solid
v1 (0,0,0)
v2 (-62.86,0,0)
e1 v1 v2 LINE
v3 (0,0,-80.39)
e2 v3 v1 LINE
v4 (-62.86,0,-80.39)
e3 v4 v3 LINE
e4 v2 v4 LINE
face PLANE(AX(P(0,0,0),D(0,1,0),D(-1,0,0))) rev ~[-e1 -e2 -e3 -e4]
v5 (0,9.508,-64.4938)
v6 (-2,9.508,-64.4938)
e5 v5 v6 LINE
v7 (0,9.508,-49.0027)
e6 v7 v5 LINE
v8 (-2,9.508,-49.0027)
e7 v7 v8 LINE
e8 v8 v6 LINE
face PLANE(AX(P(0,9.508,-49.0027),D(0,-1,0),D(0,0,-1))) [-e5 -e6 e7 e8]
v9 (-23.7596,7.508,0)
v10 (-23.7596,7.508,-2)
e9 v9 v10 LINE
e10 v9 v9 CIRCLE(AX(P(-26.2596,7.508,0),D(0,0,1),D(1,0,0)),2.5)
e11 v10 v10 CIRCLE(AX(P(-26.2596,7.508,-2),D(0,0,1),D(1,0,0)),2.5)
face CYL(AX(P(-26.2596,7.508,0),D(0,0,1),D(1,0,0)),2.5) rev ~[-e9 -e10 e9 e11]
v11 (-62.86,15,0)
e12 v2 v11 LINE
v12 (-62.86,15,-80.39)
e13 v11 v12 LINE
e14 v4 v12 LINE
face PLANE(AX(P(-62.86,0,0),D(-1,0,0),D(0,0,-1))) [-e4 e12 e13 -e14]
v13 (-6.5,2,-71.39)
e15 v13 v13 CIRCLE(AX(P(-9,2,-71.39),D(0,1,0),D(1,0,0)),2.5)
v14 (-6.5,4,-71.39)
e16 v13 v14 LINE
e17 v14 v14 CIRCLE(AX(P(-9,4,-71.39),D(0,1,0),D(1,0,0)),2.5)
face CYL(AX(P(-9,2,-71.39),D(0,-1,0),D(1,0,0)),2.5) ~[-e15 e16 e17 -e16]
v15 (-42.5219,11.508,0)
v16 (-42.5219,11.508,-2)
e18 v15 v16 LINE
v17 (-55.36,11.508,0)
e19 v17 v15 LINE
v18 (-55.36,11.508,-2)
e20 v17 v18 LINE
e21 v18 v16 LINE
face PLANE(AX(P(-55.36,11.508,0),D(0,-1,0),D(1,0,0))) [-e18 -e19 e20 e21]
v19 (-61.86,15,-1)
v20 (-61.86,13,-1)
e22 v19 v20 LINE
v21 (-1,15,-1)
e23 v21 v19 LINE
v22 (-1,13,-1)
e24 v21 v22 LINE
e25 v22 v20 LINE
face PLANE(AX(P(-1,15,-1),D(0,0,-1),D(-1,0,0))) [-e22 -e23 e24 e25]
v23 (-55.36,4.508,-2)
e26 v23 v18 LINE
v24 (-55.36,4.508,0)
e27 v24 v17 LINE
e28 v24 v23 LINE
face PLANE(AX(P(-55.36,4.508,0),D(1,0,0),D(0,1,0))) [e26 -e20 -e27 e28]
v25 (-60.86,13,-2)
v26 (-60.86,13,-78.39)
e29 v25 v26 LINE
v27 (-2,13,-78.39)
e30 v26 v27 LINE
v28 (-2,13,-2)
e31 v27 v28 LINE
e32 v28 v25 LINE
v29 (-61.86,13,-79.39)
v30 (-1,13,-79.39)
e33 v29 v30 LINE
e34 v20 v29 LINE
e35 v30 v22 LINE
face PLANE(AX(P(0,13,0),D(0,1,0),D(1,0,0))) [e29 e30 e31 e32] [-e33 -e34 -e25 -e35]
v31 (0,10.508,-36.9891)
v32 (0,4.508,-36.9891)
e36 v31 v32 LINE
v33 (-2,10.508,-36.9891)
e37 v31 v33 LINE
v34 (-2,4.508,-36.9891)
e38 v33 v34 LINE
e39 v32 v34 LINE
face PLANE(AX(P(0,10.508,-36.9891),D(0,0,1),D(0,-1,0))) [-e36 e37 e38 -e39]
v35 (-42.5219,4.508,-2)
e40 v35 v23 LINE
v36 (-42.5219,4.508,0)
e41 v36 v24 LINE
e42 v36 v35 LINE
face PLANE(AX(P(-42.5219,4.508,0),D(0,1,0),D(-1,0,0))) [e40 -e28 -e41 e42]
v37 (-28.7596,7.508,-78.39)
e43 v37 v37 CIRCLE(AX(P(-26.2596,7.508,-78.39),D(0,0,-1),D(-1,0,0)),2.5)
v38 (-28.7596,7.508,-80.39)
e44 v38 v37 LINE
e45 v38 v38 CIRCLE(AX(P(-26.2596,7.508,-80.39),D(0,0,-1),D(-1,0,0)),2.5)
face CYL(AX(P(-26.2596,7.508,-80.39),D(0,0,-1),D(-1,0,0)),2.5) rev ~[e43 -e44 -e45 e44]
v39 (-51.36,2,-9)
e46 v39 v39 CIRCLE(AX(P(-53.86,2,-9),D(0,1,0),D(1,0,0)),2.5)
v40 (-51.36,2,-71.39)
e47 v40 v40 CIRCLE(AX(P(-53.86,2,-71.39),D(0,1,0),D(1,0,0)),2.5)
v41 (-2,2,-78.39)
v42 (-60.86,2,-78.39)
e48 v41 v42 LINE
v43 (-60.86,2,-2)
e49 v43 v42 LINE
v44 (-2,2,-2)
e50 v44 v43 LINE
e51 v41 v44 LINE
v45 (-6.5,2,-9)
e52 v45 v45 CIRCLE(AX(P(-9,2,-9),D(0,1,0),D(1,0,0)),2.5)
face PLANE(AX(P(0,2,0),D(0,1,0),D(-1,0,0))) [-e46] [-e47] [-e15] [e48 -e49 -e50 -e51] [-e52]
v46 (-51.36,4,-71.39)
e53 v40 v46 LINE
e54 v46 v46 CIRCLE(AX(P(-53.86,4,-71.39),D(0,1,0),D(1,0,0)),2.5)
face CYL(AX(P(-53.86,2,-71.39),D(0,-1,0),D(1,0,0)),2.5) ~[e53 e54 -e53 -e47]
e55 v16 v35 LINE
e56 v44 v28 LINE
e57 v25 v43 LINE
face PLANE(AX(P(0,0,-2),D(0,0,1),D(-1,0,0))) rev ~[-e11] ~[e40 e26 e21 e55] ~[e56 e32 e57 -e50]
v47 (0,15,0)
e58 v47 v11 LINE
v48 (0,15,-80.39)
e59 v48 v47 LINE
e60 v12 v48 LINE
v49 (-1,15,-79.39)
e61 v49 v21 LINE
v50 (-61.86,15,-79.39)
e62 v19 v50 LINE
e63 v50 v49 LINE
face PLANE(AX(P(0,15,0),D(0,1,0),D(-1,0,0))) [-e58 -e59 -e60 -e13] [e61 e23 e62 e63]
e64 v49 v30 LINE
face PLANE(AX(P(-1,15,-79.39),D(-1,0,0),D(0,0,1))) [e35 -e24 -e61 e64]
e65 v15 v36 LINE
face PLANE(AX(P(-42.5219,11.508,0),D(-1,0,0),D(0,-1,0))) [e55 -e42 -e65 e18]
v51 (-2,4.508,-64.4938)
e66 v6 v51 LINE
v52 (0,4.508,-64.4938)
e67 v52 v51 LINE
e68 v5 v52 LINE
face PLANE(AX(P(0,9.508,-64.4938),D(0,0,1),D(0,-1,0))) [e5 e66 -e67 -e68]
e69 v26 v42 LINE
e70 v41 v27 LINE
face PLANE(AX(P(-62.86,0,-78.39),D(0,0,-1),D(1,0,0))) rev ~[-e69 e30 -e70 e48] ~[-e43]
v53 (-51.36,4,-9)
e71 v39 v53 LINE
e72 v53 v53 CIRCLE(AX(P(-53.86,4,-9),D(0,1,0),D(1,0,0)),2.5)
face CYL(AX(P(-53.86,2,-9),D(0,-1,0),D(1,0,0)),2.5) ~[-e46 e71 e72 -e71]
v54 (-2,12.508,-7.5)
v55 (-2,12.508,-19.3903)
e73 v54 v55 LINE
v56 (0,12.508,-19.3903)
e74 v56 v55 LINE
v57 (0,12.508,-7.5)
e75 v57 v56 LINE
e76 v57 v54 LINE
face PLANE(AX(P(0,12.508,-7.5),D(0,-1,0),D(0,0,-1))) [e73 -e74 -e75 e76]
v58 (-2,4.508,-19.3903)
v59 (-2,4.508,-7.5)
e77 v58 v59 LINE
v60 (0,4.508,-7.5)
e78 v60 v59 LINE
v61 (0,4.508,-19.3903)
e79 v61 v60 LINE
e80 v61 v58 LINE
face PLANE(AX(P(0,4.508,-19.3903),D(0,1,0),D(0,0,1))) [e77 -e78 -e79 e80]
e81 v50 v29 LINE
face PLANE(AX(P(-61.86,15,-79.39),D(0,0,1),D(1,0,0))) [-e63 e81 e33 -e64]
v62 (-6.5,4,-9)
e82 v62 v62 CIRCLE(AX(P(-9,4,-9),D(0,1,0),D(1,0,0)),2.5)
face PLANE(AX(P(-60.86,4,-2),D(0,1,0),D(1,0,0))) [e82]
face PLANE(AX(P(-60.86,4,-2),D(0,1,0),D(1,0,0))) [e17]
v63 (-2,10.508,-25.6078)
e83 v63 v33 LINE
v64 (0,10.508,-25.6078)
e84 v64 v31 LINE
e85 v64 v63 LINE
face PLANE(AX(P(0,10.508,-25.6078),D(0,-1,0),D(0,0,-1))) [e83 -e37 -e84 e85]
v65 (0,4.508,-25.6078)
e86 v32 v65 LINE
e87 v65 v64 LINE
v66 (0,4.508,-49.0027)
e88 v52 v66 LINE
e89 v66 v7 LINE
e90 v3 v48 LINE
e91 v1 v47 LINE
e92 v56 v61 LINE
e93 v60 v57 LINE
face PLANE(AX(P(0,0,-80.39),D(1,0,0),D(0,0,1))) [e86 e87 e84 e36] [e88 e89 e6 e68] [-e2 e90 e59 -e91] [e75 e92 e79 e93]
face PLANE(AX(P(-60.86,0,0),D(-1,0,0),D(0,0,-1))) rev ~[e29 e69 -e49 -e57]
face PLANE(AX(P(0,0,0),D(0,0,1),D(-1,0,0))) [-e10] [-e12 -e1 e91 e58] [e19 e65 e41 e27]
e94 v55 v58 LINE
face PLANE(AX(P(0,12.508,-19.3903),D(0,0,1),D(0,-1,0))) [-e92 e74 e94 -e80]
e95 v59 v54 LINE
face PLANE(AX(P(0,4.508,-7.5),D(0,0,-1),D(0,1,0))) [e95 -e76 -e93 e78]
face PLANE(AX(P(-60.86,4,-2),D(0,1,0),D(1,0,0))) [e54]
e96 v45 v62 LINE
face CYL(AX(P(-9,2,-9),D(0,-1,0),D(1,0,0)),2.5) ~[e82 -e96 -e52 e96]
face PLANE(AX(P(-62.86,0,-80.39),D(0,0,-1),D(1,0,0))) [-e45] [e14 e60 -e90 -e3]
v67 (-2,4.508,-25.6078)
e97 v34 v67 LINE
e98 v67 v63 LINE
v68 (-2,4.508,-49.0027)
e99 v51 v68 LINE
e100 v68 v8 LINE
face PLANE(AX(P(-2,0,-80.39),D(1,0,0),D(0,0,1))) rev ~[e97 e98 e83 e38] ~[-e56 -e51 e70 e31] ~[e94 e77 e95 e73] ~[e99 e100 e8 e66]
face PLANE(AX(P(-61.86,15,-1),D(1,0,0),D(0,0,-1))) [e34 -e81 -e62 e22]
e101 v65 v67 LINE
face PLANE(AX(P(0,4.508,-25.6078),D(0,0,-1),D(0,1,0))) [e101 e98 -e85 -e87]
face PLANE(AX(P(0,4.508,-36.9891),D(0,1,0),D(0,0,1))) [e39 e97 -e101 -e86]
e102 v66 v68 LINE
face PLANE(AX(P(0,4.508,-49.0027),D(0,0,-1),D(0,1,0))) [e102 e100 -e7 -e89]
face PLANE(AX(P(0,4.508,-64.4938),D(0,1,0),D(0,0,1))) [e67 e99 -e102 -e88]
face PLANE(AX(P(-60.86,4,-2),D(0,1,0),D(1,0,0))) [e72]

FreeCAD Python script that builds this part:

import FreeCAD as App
import Part
import Sketcher

V = App.Vector
Q = App.Units.Quantity


def faces_at(feature, points):
    """Names of the faces that lie closest to the given points."""
    faces = feature.Shape.Faces
    near = lambda p: min(range(len(faces)), key=lambda i: faces[i].distToShape(Part.Vertex(*p))[0])
    return sorted({f"Face{near(p) + 1}" for p in points})

doc = App.newDocument("Part")
params = doc.addObject("Spreadsheet::Sheet", "Params")
for row, (alias, value) in enumerate([
    ("sketch1_width", "62.86 mm"),
    ("sketch1_height", "80.39 mm"),
    ("pad1_length", "15 mm"),
    ("thickness_wall", "2 mm"),
    ("sketch2_width", "60.86 mm"),
    ("sketch2_height", "78.39 mm"),
    ("pocket1_length", "2 mm"),
    ("sketch3_diameter", "5 mm"),
    ("pad2_length", "2 mm"),
    ("sketch4_width", "8 mm"),
    ("sketch4_width2", "6 mm"),
    ("sketch4_width3", "5 mm"),
    ("pocket2_length", "2 mm"),
    ("sketch5_diameter", "5 mm"),
    ("sketch5_height", "7 mm"),
    ("pocket3_length", "2 mm"),
    ("sketch6_diameter", "5 mm"),
    ("pocket4_length", "2 mm"),
], start=1):
    params.set(f"A{row}", alias)
    params.set(f"B{row}", "=" + value)
    params.setAlias(f"B{row}", alias)

body = doc.addObject("PartDesign::Body", "Body")

sketch1 = body.newObject("Sketcher::SketchObject", "Sketch")
sketch1.AttachmentSupport = (doc.getObject("XZ_Plane"), [""])
sketch1.MapMode = "FlatFace"
sketch1.addGeometry(Part.LineSegment(V(-63, 0, 0), V(0, 0, 0)), False)
sketch1.addGeometry(Part.LineSegment(V(0, 0, 0), V(0, -80, 0)), False)
sketch1.addGeometry(Part.LineSegment(V(0, -80, 0), V(-63, -80, 0)), False)
sketch1.addGeometry(Part.LineSegment(V(-63, -80, 0), V(-63, 0, 0)), False)
sketch1.addConstraint(Sketcher.Constraint("Coincident", 0, 2, 1, 1))
sketch1.addConstraint(Sketcher.Constraint("Coincident", 1, 2, 2, 1))
sketch1.addConstraint(Sketcher.Constraint("Coincident", 2, 2, 3, 1))
sketch1.addConstraint(Sketcher.Constraint("Coincident", 3, 2, 0, 1))
sketch1.addConstraint(Sketcher.Constraint("Horizontal", 0))
sketch1.addConstraint(Sketcher.Constraint("Vertical", 1))
sketch1.addConstraint(Sketcher.Constraint("Horizontal", 2))
sketch1.addConstraint(Sketcher.Constraint("Vertical", 3))
sketch1.addConstraint(Sketcher.Constraint("Coincident", 0, 2, -1, 1))
sketch1.addConstraint(Sketcher.Constraint("DistanceX", 0, 1, 0, 2, Q("62.86 mm")))
sketch1.addConstraint(Sketcher.Constraint("DistanceY", 1, 2, 1, 1, Q("80.39 mm")))
sketch1.setExpression("Constraints[9]", "Params.sketch1_width")
sketch1.setExpression("Constraints[10]", "Params.sketch1_height")
pad1 = body.newObject("PartDesign::Pad", "Pad")
pad1.Profile = sketch1
pad1.setExpression("Length", "Params.pad1_length")
pad1.Reversed = True
doc.recompute()

thickness = body.newObject("PartDesign::Thickness", "Thickness")
thickness.Base = (pad1, faces_at(pad1, [(-20.953, 15, -26.797)]))
thickness.setExpression("Value", "Params.thickness_wall")
thickness.Reversed = True
thickness.Join = "Intersection"

sketch2 = body.newObject("Sketcher::SketchObject", "Sketch001")
sketch2.AttachmentSupport = (doc.getObject("XZ_Plane"), [""])
sketch2.MapMode = "FlatFace"
sketch2.AttachmentOffset = App.Placement(V(0, 0, -15), App.Rotation())
sketch2.addGeometry(Part.LineSegment(V(-1, -79, 0), V(-62, -79, 0)), False)
sketch2.addGeometry(Part.LineSegment(V(-62, -79, 0), V(-62, -1, 0)), False)
sketch2.addGeometry(Part.LineSegment(V(-62, -1, 0), V(-1, -1, 0)), False)
sketch2.addGeometry(Part.LineSegment(V(-1, -1, 0), V(-1, -79, 0)), False)
sketch2.addGeometry(Part.LineSegment(V(-2, -2, 0), V(-61, -2, 0)), False)
sketch2.addGeometry(Part.LineSegment(V(-61, -2, 0), V(-61, -78, 0)), False)
sketch2.addGeometry(Part.LineSegment(V(-61, -78, 0), V(-2, -78, 0)), False)
sketch2.addGeometry(Part.LineSegment(V(-2, -78, 0), V(-2, -2, 0)), False)
sketch2.addConstraint(Sketcher.Constraint("Coincident", 0, 2, 1, 1))
sketch2.addConstraint(Sketcher.Constraint("Coincident", 1, 2, 2, 1))
sketch2.addConstraint(Sketcher.Constraint("Coincident", 2, 2, 3, 1))
sketch2.addConstraint(Sketcher.Constraint("Coincident", 3, 2, 0, 1))
sketch2.addConstraint(Sketcher.Constraint("Coincident", 4, 2, 5, 1))
sketch2.addConstraint(Sketcher.Constraint("Coincident", 5, 2, 6, 1))
sketch2.addConstraint(Sketcher.Constraint("Coincident", 6, 2, 7, 1))
sketch2.addConstraint(Sketcher.Constraint("Coincident", 7, 2, 4, 1))
sketch2.addConstraint(Sketcher.Constraint("Horizontal", 0))
sketch2.addConstraint(Sketcher.Constraint("Vertical", 1))
sketch2.addConstraint(Sketcher.Constraint("Horizontal", 2))
sketch2.addConstraint(Sketcher.Constraint("Vertical", 3))
sketch2.addConstraint(Sketcher.Constraint("Horizontal", 4))
sketch2.addConstraint(Sketcher.Constraint("Vertical", 5))
sketch2.addConstraint(Sketcher.Constraint("Horizontal", 6))
sketch2.addConstraint(Sketcher.Constraint("Vertical", 7))
sketch2.addConstraint(Sketcher.Constraint("DistanceY", 1, 2, -1, 1, Q("1 mm")))
sketch2.addConstraint(Sketcher.Constraint("DistanceX", 2, 2, -1, 1, Q("1 mm")))
sketch2.addConstraint(Sketcher.Constraint("DistanceX", 1, 2, 4, 2, Q("1 mm")))
sketch2.addConstraint(Sketcher.Constraint("DistanceY", 4, 2, 1, 2, Q("1 mm")))
sketch2.addConstraint(Sketcher.Constraint("DistanceY", 0, 2, 5, 2, Q("1 mm")))
sketch2.addConstraint(Sketcher.Constraint("DistanceX", 6, 2, 3, 2, Q("1 mm")))
sketch2.addConstraint(Sketcher.Constraint("DistanceX", 0, 2, 0, 1, Q("60.86 mm")))
sketch2.addConstraint(Sketcher.Constraint("DistanceY", 1, 1, 1, 2, Q("78.39 mm")))
sketch2.setExpression("Constraints[22]", "Params.sketch2_width")
sketch2.setExpression("Constraints[23]", "Params.sketch2_height")
pocket1 = body.newObject("PartDesign::Pocket", "Pocket")
pocket1.Profile = sketch2
pocket1.setExpression("Length", "Params.pocket1_length")
pocket1.Reversed = True

sketch3 = body.newObject("Sketcher::SketchObject", "Sketch002")
sketch3.AttachmentSupport = (doc.getObject("XZ_Plane"), [""])
sketch3.MapMode = "FlatFace"
sketch3.AttachmentOffset = App.Placement(V(0, 0, -2), App.Rotation())
sketch3.addGeometry(Part.Circle(V(-53.9, -71.4, 0), V(0, 0, 1), 2.5), False)
sketch3.addGeometry(Part.Circle(V(-9, -71.4, 0), V(0, 0, 1), 2.5), False)
sketch3.addGeometry(Part.Circle(V(-53.9, -9, 0), V(0, 0, 1), 2.5), False)
sketch3.addGeometry(Part.Circle(V(-9, -9, 0), V(0, 0, 1), 2.5), False)
sketch3.addConstraint(Sketcher.Constraint("Equal", 0, 1))
sketch3.addConstraint(Sketcher.Constraint("Equal", 1, 2))
sketch3.addConstraint(Sketcher.Constraint("Equal", 2, 3))
sketch3.addConstraint(Sketcher.Constraint("Horizontal", 0, 3, 1, 3))
sketch3.addConstraint(Sketcher.Constraint("Horizontal", 2, 3, 3, 3))
sketch3.addConstraint(Sketcher.Constraint("Vertical", 0, 3, 2, 3))
sketch3.addConstraint(Sketcher.Constraint("Vertical", 1, 3, 3, 3))
sketch3.addConstraint(Sketcher.Constraint("Diameter", 0, Q("5 mm")))
sketch3.addConstraint(Sketcher.Constraint("DistanceX", 1, 3, -1, 1, Q("9 mm")))
sketch3.addConstraint(Sketcher.Constraint("DistanceY", 2, 3, -1, 1, Q("9 mm")))
sketch3.addConstraint(Sketcher.Constraint("DistanceX", 0, 3, -1, 1, Q("53.86 mm")))
sketch3.addConstraint(Sketcher.Constraint("DistanceY", 0, 3, -1, 1, Q("71.39 mm")))
sketch3.setExpression("Constraints[7]", "Params.sketch3_diameter")
pad2 = body.newObject("PartDesign::Pad", "Pad001")
pad2.Profile = sketch3
pad2.setExpression("Length", "Params.pad2_length")
pad2.Reversed = True

sketch4 = body.newObject("Sketcher::SketchObject", "Sketch003")
sketch4.AttachmentSupport = (doc.getObject("YZ_Plane"), [""])
sketch4.MapMode = "FlatFace"
sketch4.addGeometry(Part.LineSegment(V(12.5, -19.4, 0), V(12.5, -7.5, 0)), False)
sketch4.addGeometry(Part.LineSegment(V(12.5, -7.5, 0), V(4.5, -7.5, 0)), False)
sketch4.addGeometry(Part.LineSegment(V(4.5, -7.5, 0), V(4.5, -19.4, 0)), False)
sketch4.addGeometry(Part.LineSegment(V(4.5, -19.4, 0), V(12.5, -19.4, 0)), False)
sketch4.addGeometry(Part.LineSegment(V(10.5, -37, 0), V(10.5, -25.6, 0)), False)
sketch4.addGeometry(Part.LineSegment(V(10.5, -25.6, 0), V(4.5, -25.6, 0)), False)
sketch4.addGeometry(Part.LineSegment(V(4.5, -25.6, 0), V(4.5, -37, 0)), False)
sketch4.addGeometry(Part.LineSegment(V(4.5, -37, 0), V(10.5, -37, 0)), False)
sketch4.addGeometry(Part.LineSegment(V(9.5, -64.5, 0), V(9.5, -49, 0)), False)
sketch4.addGeometry(Part.LineSegment(V(9.5, -49, 0), V(4.5, -49, 0)), False)
sketch4.addGeometry(Part.LineSegment(V(4.5, -49, 0), V(4.5, -64.5, 0)), False)
sketch4.addGeometry(Part.LineSegment(V(4.5, -64.5, 0), V(9.5, -64.5, 0)), False)
sketch4.addConstraint(Sketcher.Constraint("Coincident", 0, 2, 1, 1))
sketch4.addConstraint(Sketcher.Constraint("Coincident", 1, 2, 2, 1))
sketch4.addConstraint(Sketcher.Constraint("Coincident", 2, 2, 3, 1))
sketch4.addConstraint(Sketcher.Constraint("Coincident", 3, 2, 0, 1))
sketch4.addConstraint(Sketcher.Constraint("Coincident", 4, 2, 5, 1))
sketch4.addConstraint(Sketcher.Constraint("Coincident", 5, 2, 6, 1))
sketch4.addConstraint(Sketcher.Constraint("Coincident", 6, 2, 7, 1))
sketch4.addConstraint(Sketcher.Constraint("Coincident", 7, 2, 4, 1))
sketch4.addConstraint(Sketcher.Constraint("Coincident", 8, 2, 9, 1))
sketch4.addConstraint(Sketcher.Constraint("Coincident", 9, 2, 10, 1))
sketch4.addConstraint(Sketcher.Constraint("Coincident", 10, 2, 11, 1))
sketch4.addConstraint(Sketcher.Constraint("Coincident", 11, 2, 8, 1))
sketch4.addConstraint(Sketcher.Constraint("Vertical", 0))
sketch4.addConstraint(Sketcher.Constraint("Horizontal", 1))
sketch4.addConstraint(Sketcher.Constraint("Vertical", 2))
sketch4.addConstraint(Sketcher.Constraint("Horizontal", 3))
sketch4.addConstraint(Sketcher.Constraint("Vertical", 4))
sketch4.addConstraint(Sketcher.Constraint("Horizontal", 5))
sketch4.addConstraint(Sketcher.Constraint("Vertical", 6))
sketch4.addConstraint(Sketcher.Constraint("Horizontal", 7))
sketch4.addConstraint(Sketcher.Constraint("Vertical", 8))
sketch4.addConstraint(Sketcher.Constraint("Horizontal", 9))
sketch4.addConstraint(Sketcher.Constraint("Vertical", 10))
sketch4.addConstraint(Sketcher.Constraint("Horizontal", 11))
sketch4.addConstraint(Sketcher.Constraint("Vertical", 2, 2, 5, 2))
sketch4.addConstraint(Sketcher.Constraint("Vertical", 6, 2, 9, 2))
sketch4.addConstraint(Sketcher.Constraint("DistanceX", 1, 2, 1, 1, Q("8 mm")))
sketch4.addConstraint(Sketcher.Constraint("DistanceX", 5, 2, 5, 1, Q("6 mm")))
sketch4.addConstraint(Sketcher.Constraint("DistanceX", 9, 2, 9, 1, Q("5 mm")))
sketch4.addConstraint(Sketcher.Constraint("DistanceY", 0, 2, -1, 1, Q("7.5 mm")))
sketch4.addConstraint(Sketcher.Constraint("DistanceY", 8, 1, 8, 2, Q("15.491 mm")))
sketch4.addConstraint(Sketcher.Constraint("DistanceY", 0, 1, 0, 2, Q("11.8903 mm")))
sketch4.addConstraint(Sketcher.Constraint("DistanceY", 4, 1, 4, 2, Q("11.3813 mm")))
sketch4.addConstraint(Sketcher.Constraint("DistanceX", -1, 1, 0, 2, Q("12.508 mm")))
sketch4.addConstraint(Sketcher.Constraint("DistanceY", 6, 2, -1, 1, Q("36.989 mm")))
sketch4.addConstraint(Sketcher.Constraint("DistanceY", 8, 2, 4, 2, Q("23.395 mm")))
sketch4.setExpression("Constraints[26]", "Params.sketch4_width")
sketch4.setExpression("Constraints[27]", "Params.sketch4_width2")
sketch4.setExpression("Constraints[28]", "Params.sketch4_width3")
pocket2 = body.newObject("PartDesign::Pocket", "Pocket001")
pocket2.Profile = sketch4
pocket2.setExpression("Length", "Params.pocket2_length")

sketch5 = body.newObject("Sketcher::SketchObject", "Sketch004")
sketch5.AttachmentSupport = (doc.getObject("XY_Plane"), [""])
sketch5.MapMode = "FlatFace"
sketch5.addGeometry(Part.LineSegment(V(-42.5, 11.5, 0), V(-55.4, 11.5, 0)), False)
sketch5.addGeometry(Part.LineSegment(V(-55.4, 11.5, 0), V(-55.4, 4.5, 0)), False)
sketch5.addGeometry(Part.LineSegment(V(-55.4, 4.5, 0), V(-42.5, 4.5, 0)), False)
sketch5.addGeometry(Part.LineSegment(V(-42.5, 4.5, 0), V(-42.5, 11.5, 0)), False)
sketch5.addGeometry(Part.Circle(V(-26.3, 7.5, 0), V(0, 0, 1), 2.5), False)
sketch5.addConstraint(Sketcher.Constraint("Coincident", 0, 2, 1, 1))
sketch5.addConstraint(Sketcher.Constraint("Coincident", 1, 2, 2, 1))
sketch5.addConstraint(Sketcher.Constraint("Coincident", 2, 2, 3, 1))
sketch5.addConstraint(Sketcher.Constraint("Coincident", 3, 2, 0, 1))
sketch5.addConstraint(Sketcher.Constraint("Horizontal", 0))
sketch5.addConstraint(Sketcher.Constraint("Vertical", 1))
sketch5.addConstraint(Sketcher.Constraint("Horizontal", 2))
sketch5.addConstraint(Sketcher.Constraint("Vertical", 3))
sketch5.addConstraint(Sketcher.Constraint("Diameter", 4, Q("5 mm")))
sketch5.addConstraint(Sketcher.Constraint("DistanceY", 1, 2, 1, 1, Q("7 mm")))
sketch5.addConstraint(Sketcher.Constraint("DistanceY", 4, 3, 0, 2, Q("4 mm")))
sketch5.addConstraint(Sketcher.Constraint("DistanceX", 0, 2, 0, 1, Q("12.838 mm")))
sketch5.addConstraint(Sketcher.Constraint("DistanceX", 0, 2, -1, 1, Q("55.36 mm")))
sketch5.addConstraint(Sketcher.Constraint("DistanceY", -1, 1, 4, 3, Q("7.508 mm")))
sketch5.addConstraint(Sketcher.Constraint("DistanceX", 4, 3, -1, 1, Q("26.2596 mm")))
sketch5.setExpression("Constraints[8]", "Params.sketch5_diameter")
sketch5.setExpression("Constraints[9]", "Params.sketch5_height")
pocket3 = body.newObject("PartDesign::Pocket", "Pocket002")
pocket3.Profile = sketch5
pocket3.setExpression("Length", "Params.pocket3_length")

sketch6 = body.newObject("Sketcher::SketchObject", "Sketch005")
sketch6.AttachmentSupport = (doc.getObject("XY_Plane"), [""])
sketch6.MapMode = "FlatFace"
sketch6.AttachmentOffset = App.Placement(V(0, 0, -80.39), App.Rotation())
sketch6.addGeometry(Part.Circle(V(-26.3, 7.5, 0), V(0, 0, 1), 2.5), False)
sketch6.addConstraint(Sketcher.Constraint("Diameter", 0, Q("5 mm")))
sketch6.addConstraint(Sketcher.Constraint("DistanceY", -1, 1, 0, 3, Q("7.508 mm")))
sketch6.addConstraint(Sketcher.Constraint("DistanceX", 0, 3, -1, 1, Q("26.2596 mm")))
sketch6.setExpression("Constraints[0]", "Params.sketch6_diameter")
pocket4 = body.newObject("PartDesign::Pocket", "Pocket003")
pocket4.Profile = sketch6
pocket4.setExpression("Length", "Params.pocket4_length")
pocket4.Reversed = True

doc.recompute()
